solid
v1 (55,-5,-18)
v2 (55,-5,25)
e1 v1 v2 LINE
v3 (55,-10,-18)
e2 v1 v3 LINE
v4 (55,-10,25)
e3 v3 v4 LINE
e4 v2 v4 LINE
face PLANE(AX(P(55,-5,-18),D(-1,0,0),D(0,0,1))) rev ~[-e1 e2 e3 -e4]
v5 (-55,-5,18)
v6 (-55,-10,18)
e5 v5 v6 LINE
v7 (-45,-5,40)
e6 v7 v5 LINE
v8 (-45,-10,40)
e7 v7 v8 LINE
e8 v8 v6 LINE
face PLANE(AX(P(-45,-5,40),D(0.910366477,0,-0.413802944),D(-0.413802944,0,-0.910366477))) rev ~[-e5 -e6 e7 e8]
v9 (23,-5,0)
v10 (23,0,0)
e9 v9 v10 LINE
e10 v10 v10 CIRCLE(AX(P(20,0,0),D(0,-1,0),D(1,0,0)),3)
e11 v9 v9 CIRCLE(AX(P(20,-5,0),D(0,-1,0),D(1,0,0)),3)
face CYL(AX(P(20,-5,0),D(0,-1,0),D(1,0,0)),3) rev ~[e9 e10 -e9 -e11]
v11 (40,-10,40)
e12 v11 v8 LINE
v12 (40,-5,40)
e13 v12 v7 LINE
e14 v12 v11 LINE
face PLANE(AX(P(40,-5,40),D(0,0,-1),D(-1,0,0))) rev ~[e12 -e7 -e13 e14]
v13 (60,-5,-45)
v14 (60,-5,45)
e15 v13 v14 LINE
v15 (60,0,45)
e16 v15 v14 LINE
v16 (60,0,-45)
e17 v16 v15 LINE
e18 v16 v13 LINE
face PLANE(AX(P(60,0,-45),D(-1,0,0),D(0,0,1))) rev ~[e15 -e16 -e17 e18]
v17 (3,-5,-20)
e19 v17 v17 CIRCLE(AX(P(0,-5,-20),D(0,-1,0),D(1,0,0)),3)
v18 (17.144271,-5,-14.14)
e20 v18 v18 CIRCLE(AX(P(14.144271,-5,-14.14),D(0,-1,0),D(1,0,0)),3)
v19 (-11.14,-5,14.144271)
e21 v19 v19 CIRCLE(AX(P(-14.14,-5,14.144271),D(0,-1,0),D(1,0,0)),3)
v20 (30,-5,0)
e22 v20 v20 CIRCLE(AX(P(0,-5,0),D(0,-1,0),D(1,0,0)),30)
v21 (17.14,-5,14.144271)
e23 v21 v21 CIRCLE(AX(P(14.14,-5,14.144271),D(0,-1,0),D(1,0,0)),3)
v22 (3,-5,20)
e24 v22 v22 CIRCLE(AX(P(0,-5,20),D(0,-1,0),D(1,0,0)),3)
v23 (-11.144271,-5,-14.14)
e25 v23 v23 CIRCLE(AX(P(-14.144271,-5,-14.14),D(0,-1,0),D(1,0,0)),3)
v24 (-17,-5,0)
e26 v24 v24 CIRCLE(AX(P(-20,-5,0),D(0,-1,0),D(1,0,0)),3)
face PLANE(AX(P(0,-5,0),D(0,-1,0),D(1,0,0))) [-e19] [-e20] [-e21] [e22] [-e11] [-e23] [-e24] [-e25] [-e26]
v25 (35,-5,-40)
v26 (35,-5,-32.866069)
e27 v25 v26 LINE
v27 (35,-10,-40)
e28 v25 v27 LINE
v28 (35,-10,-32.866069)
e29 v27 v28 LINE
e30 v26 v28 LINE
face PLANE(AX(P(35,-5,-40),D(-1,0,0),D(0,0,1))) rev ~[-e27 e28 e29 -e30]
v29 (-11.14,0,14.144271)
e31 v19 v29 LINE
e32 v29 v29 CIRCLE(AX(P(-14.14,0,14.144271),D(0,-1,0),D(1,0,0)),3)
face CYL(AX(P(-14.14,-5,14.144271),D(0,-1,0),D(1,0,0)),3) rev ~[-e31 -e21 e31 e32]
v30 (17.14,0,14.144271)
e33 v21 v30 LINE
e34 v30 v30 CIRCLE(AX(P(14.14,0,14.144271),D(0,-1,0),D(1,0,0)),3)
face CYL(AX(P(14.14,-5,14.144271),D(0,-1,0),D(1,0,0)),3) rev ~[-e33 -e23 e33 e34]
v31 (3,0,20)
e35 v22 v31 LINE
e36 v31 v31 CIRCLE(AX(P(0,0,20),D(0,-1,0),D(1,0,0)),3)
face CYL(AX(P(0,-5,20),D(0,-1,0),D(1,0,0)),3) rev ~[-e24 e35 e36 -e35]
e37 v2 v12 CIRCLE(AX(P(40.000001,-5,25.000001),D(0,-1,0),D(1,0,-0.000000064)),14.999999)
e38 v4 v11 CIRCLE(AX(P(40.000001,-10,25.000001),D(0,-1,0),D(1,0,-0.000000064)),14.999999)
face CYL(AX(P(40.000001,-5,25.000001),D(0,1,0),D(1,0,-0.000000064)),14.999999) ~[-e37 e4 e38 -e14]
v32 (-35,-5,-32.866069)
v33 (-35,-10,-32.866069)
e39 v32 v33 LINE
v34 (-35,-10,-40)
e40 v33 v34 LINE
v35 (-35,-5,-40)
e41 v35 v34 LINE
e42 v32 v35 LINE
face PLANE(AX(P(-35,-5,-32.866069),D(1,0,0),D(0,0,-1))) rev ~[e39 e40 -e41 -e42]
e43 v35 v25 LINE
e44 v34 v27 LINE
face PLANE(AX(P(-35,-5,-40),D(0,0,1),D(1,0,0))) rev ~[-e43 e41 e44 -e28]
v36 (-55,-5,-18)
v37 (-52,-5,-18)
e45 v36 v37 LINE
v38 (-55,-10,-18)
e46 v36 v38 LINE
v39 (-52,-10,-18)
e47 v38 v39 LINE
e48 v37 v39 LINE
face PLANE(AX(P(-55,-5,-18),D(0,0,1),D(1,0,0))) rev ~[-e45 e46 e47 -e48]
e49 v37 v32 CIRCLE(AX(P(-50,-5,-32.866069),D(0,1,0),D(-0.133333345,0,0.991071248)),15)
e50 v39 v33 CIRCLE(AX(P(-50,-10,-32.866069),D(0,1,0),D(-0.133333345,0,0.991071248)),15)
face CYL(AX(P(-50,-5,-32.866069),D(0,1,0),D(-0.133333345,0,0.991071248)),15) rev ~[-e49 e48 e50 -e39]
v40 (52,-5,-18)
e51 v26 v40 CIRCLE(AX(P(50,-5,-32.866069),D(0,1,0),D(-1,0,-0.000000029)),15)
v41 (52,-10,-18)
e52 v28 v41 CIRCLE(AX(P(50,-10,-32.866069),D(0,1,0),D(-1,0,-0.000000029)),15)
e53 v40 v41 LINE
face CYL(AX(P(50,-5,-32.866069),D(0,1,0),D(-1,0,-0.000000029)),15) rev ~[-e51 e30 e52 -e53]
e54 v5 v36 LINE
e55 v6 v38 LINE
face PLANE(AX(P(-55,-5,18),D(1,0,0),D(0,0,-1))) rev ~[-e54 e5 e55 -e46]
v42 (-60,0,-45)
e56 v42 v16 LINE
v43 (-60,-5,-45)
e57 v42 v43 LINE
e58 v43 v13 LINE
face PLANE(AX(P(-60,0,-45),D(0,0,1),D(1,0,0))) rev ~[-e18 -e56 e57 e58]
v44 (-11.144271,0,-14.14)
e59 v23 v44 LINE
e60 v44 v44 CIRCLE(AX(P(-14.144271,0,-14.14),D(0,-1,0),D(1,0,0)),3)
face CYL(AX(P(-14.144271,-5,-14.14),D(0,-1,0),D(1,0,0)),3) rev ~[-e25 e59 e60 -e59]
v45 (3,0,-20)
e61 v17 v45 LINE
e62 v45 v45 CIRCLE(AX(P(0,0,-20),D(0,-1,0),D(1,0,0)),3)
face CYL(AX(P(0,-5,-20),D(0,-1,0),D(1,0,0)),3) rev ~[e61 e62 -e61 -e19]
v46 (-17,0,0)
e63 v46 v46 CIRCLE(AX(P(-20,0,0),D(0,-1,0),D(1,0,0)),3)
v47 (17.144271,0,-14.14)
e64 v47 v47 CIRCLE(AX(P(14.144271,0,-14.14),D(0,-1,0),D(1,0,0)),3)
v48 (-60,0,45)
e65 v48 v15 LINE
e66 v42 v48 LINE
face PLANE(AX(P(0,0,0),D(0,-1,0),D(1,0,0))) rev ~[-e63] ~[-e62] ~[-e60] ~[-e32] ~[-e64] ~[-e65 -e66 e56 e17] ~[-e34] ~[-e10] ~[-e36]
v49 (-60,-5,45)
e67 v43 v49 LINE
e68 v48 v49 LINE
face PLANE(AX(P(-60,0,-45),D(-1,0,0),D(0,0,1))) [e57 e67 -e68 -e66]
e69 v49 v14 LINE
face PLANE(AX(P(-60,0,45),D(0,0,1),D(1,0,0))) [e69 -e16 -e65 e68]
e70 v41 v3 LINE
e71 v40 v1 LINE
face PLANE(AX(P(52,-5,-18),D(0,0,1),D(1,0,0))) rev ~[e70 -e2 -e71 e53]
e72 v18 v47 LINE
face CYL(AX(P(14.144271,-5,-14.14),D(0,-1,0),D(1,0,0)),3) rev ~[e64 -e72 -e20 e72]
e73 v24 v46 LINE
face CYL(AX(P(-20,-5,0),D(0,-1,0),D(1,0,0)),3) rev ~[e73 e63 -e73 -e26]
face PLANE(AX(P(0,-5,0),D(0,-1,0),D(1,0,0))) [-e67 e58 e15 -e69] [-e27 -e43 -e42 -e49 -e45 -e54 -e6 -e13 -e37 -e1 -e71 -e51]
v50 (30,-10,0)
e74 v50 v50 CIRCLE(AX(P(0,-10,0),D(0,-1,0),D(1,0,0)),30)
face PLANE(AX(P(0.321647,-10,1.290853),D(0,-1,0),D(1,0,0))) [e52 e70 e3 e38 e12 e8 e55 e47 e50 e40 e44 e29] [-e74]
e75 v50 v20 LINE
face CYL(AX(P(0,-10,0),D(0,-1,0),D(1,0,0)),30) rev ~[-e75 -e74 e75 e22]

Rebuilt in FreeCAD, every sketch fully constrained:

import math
import FreeCAD as App
import Part
import Sketcher
from FreeCAD import Vector


def add_polygon(sketch, points):
    """Adds a closed chain of lines whose ends are joined by coincident constraints."""
    first, n = sketch.GeometryCount, len(points)
    for a, b in zip(points, points[1:] + points[:1]):
        sketch.addGeometry(Part.LineSegment(App.Vector(*a, 0), App.Vector(*b, 0)), False)
    for i in range(n):
        sketch.addConstraint(Sketcher.Constraint("Coincident", first + i, 2, first + (i + 1) % n, 1))

doc = App.newDocument("Part")
body = doc.addObject("PartDesign::Body", "Body")

sketch1 = body.newObject("Sketcher::SketchObject", "Sketch")
sketch1.AttachmentSupport = (doc.getObject("XZ_Plane"), [""])
sketch1.MapMode = "FlatFace"
add_polygon(sketch1, [(-60, 45), (-60, -45), (60, -45), (60, 45)])
sketch1.addConstraint([
    Sketcher.Constraint("Vertical", 0),
    Sketcher.Constraint("Horizontal", 1),
    Sketcher.Constraint("Vertical", 2),
    Sketcher.Constraint("Horizontal", 3),
    Sketcher.Constraint("Symmetric", 0, 2, 2, 2, -1, 1),
    Sketcher.Constraint("DistanceX", 1, 1, 1, 2, 120.0),
    Sketcher.Constraint("DistanceY", 0, 2, 0, 1, 90.0),
])
pad1 = body.newObject("PartDesign::Pad", "Pad")
pad1.Profile = sketch1
pad1.Length = 5

sketch2 = body.newObject("Sketcher::SketchObject", "Sketch001")
sketch2.AttachmentSupport = (doc.getObject("XZ_Plane"), [""])
sketch2.MapMode = "FlatFace"
sketch2.AttachmentOffset = App.Placement(Vector(0, 0, 5), App.Rotation())
sketch2.addGeometry([
    Part.LineSegment(Vector(-45, 40, 0), Vector(-55, 18, 0)),
    Part.LineSegment(Vector(-55, 18, 0), Vector(-55, -18, 0)),
    Part.LineSegment(Vector(-55, -18, 0), Vector(-52, -18, 0)),
    Part.ArcOfCircle(Part.Circle(Vector(-50, -32.866069, 0), Vector(0, 0, 1), 15), math.radians(-0.000002), math.radians(97.662256)),
    Part.LineSegment(Vector(-35, -32.866069, 0), Vector(-35, -40, 0)),
    Part.LineSegment(Vector(-35, -40, 0), Vector(35, -40, 0)),
    Part.LineSegment(Vector(35, -40, 0), Vector(35, -32.866069, 0)),
    Part.ArcOfCircle(Part.Circle(Vector(50, -32.866069, 0), Vector(0, 0, 1), 15), math.radians(82.337744), math.radians(180.000002)),
    Part.LineSegment(Vector(52, -18, 0), Vector(55, -18, 0)),
    Part.LineSegment(Vector(55, -18, 0), Vector(55, 25, 0)),
    Part.ArcOfCircle(Part.Circle(Vector(40.000001, 25.000001, 0), Vector(0, 0, 1), 14.999999), math.radians(-0.000004), math.radians(90.000004)),
    Part.LineSegment(Vector(40, 40, 0), Vector(-45, 40, 0)),
], False)
sketch2.addConstraint([
    Sketcher.Constraint("Coincident", 0, 2, 1, 1),
    Sketcher.Constraint("Coincident", 1, 2, 2, 1),
    Sketcher.Constraint("Coincident", 2, 2, 3, 2),
    Sketcher.Constraint("Tangent", 3, 1, 4, 1),
    Sketcher.Constraint("Coincident", 4, 2, 5, 1),
    Sketcher.Constraint("Coincident", 5, 2, 6, 1),
    Sketcher.Constraint("Tangent", 6, 2, 7, 2),
    Sketcher.Constraint("Coincident", 7, 1, 8, 1),
    Sketcher.Constraint("Coincident", 8, 2, 9, 1),
    Sketcher.Constraint("Tangent", 9, 2, 10, 1),
    Sketcher.Constraint("Tangent", 10, 2, 11, 1),
    Sketcher.Constraint("Coincident", 11, 2, 0, 1),
    Sketcher.Constraint("Vertical", 1),
    Sketcher.Constraint("Horizontal", 2),
    Sketcher.Constraint("Vertical", 4),
    Sketcher.Constraint("Horizontal", 5),
    Sketcher.Constraint("Vertical", 6),
    Sketcher.Constraint("Horizontal", 8),
    Sketcher.Constraint("Vertical", 9),
    Sketcher.Constraint("Horizontal", 11),
    Sketcher.Constraint("Equal", 3, 7),
    Sketcher.Constraint("Equal", 7, 10),
    Sketcher.Constraint("Symmetric", 0, 2, 8, 2, -1, 1),
    Sketcher.Constraint("Symmetric", 3, 3, 7, 3, -2),
    Sketcher.Constraint("Horizontal", 2, 2, 7, 1),
    Sketcher.Constraint("Radius", 3, 15.0),
    Sketcher.Constraint("DistanceX", 2, 1, 2, 2, 3.0),
    Sketcher.Constraint("DistanceX", 5, 1, 5, 2, 70.0),
    Sketcher.Constraint("DistanceX", 11, 2, 11, 1, 85.0),
    Sketcher.Constraint("DistanceY", 1, 2, 1, 1, 36.0),
    Sketcher.Constraint("DistanceY", 9, 1, 9, 2, 43.0),
    Sketcher.Constraint("DistanceX", -1, 1, 10, 3, 40.000001),
    Sketcher.Constraint("DistanceY", 4, 2, -1, 1, 40.0),
])
pad2 = body.newObject("PartDesign::Pad", "Pad001")
pad2.Profile = sketch2
pad2.Length = 5

sketch3 = body.newObject("Sketcher::SketchObject", "Sketch002")
sketch3.AttachmentSupport = (doc.getObject("XZ_Plane"), [""])
sketch3.MapMode = "FlatFace"
sketch3.AttachmentOffset = App.Placement(Vector(0, 0, 10), App.Rotation())
sketch3.addGeometry(Part.Circle(Vector(0, 0, 0), Vector(0, 0, 1), 30), False)
sketch3.addConstraint([
    Sketcher.Constraint("Coincident", 0, 3, -1, 1),
    Sketcher.Constraint("Diameter", 0, 60.0),
])
pocket1 = body.newObject("PartDesign::Pocket", "Pocket")
pocket1.Profile = sketch3
pocket1.Length = 5

sketch4 = body.newObject("Sketcher::SketchObject", "Sketch003")
sketch4.AttachmentSupport = (doc.getObject("XZ_Plane"), [""])
sketch4.MapMode = "FlatFace"
sketch4.AttachmentOffset = App.Placement(Vector(0, 0, 5), App.Rotation())
sketch4.addGeometry([
    Part.Circle(Vector(-14.14, 14.144271, 0), Vector(0, 0, 1), 3),
    Part.Circle(Vector(0, 20, 0), Vector(0, 0, 1), 3),
    Part.Circle(Vector(14.14, 14.144271, 0), Vector(0, 0, 1), 3),
    Part.Circle(Vector(20, 0, 0), Vector(0, 0, 1), 3),
    Part.Circle(Vector(14.144271, -14.14, 0), Vector(0, 0, 1), 3),
    Part.Circle(Vector(0, -20, 0), Vector(0, 0, 1), 3),
    Part.Circle(Vector(-14.144271, -14.14, 0), Vector(0, 0, 1), 3),
    Part.Circle(Vector(-20, 0, 0), Vector(0, 0, 1), 3),
], False)
sketch4.addConstraint([
    Sketcher.Constraint("Equal", 0, 1),
    Sketcher.Constraint("Equal", 1, 2),
    Sketcher.Constraint("Equal", 2, 3),
    Sketcher.Constraint("Equal", 3, 4),
    Sketcher.Constraint("Equal", 4, 5),
    Sketcher.Constraint("Equal", 5, 6),
    Sketcher.Constraint("Equal", 6, 7),
    Sketcher.Constraint("Symmetric", 1, 3, 5, 3, -1, 1),
    Sketcher.Constraint("Symmetric", 3, 3, 7, 3, -1, 1),
    Sketcher.Constraint("Symmetric", 0, 3, 2, 3, -2),
    Sketcher.Constraint("Symmetric", 4, 3, 6, 3, -2),
    Sketcher.Constraint("PointOnObject", 1, 3, -2),
    Sketcher.Constraint("PointOnObject", 3, 3, -1),
    Sketcher.Constraint("Diameter", 0, 6.0),
    Sketcher.Constraint("DistanceY", -1, 1, 1, 3, 20.0),
    Sketcher.Constraint("DistanceX", -1, 1, 3, 3, 20.0),
    Sketcher.Constraint("DistanceX", 0, 3, -1, 1, 14.14),
    Sketcher.Constraint("DistanceY", 4, 3, -1, 1, 14.14),
    Sketcher.Constraint("DistanceY", -1, 1, 0, 3, 14.144271),
    Sketcher.Constraint("DistanceX", -1, 1, 4, 3, 14.144271),
])
pocket2 = body.newObject("PartDesign::Pocket", "Pocket001")
pocket2.Profile = sketch4
pocket2.Length = 5

doc.recompute()
